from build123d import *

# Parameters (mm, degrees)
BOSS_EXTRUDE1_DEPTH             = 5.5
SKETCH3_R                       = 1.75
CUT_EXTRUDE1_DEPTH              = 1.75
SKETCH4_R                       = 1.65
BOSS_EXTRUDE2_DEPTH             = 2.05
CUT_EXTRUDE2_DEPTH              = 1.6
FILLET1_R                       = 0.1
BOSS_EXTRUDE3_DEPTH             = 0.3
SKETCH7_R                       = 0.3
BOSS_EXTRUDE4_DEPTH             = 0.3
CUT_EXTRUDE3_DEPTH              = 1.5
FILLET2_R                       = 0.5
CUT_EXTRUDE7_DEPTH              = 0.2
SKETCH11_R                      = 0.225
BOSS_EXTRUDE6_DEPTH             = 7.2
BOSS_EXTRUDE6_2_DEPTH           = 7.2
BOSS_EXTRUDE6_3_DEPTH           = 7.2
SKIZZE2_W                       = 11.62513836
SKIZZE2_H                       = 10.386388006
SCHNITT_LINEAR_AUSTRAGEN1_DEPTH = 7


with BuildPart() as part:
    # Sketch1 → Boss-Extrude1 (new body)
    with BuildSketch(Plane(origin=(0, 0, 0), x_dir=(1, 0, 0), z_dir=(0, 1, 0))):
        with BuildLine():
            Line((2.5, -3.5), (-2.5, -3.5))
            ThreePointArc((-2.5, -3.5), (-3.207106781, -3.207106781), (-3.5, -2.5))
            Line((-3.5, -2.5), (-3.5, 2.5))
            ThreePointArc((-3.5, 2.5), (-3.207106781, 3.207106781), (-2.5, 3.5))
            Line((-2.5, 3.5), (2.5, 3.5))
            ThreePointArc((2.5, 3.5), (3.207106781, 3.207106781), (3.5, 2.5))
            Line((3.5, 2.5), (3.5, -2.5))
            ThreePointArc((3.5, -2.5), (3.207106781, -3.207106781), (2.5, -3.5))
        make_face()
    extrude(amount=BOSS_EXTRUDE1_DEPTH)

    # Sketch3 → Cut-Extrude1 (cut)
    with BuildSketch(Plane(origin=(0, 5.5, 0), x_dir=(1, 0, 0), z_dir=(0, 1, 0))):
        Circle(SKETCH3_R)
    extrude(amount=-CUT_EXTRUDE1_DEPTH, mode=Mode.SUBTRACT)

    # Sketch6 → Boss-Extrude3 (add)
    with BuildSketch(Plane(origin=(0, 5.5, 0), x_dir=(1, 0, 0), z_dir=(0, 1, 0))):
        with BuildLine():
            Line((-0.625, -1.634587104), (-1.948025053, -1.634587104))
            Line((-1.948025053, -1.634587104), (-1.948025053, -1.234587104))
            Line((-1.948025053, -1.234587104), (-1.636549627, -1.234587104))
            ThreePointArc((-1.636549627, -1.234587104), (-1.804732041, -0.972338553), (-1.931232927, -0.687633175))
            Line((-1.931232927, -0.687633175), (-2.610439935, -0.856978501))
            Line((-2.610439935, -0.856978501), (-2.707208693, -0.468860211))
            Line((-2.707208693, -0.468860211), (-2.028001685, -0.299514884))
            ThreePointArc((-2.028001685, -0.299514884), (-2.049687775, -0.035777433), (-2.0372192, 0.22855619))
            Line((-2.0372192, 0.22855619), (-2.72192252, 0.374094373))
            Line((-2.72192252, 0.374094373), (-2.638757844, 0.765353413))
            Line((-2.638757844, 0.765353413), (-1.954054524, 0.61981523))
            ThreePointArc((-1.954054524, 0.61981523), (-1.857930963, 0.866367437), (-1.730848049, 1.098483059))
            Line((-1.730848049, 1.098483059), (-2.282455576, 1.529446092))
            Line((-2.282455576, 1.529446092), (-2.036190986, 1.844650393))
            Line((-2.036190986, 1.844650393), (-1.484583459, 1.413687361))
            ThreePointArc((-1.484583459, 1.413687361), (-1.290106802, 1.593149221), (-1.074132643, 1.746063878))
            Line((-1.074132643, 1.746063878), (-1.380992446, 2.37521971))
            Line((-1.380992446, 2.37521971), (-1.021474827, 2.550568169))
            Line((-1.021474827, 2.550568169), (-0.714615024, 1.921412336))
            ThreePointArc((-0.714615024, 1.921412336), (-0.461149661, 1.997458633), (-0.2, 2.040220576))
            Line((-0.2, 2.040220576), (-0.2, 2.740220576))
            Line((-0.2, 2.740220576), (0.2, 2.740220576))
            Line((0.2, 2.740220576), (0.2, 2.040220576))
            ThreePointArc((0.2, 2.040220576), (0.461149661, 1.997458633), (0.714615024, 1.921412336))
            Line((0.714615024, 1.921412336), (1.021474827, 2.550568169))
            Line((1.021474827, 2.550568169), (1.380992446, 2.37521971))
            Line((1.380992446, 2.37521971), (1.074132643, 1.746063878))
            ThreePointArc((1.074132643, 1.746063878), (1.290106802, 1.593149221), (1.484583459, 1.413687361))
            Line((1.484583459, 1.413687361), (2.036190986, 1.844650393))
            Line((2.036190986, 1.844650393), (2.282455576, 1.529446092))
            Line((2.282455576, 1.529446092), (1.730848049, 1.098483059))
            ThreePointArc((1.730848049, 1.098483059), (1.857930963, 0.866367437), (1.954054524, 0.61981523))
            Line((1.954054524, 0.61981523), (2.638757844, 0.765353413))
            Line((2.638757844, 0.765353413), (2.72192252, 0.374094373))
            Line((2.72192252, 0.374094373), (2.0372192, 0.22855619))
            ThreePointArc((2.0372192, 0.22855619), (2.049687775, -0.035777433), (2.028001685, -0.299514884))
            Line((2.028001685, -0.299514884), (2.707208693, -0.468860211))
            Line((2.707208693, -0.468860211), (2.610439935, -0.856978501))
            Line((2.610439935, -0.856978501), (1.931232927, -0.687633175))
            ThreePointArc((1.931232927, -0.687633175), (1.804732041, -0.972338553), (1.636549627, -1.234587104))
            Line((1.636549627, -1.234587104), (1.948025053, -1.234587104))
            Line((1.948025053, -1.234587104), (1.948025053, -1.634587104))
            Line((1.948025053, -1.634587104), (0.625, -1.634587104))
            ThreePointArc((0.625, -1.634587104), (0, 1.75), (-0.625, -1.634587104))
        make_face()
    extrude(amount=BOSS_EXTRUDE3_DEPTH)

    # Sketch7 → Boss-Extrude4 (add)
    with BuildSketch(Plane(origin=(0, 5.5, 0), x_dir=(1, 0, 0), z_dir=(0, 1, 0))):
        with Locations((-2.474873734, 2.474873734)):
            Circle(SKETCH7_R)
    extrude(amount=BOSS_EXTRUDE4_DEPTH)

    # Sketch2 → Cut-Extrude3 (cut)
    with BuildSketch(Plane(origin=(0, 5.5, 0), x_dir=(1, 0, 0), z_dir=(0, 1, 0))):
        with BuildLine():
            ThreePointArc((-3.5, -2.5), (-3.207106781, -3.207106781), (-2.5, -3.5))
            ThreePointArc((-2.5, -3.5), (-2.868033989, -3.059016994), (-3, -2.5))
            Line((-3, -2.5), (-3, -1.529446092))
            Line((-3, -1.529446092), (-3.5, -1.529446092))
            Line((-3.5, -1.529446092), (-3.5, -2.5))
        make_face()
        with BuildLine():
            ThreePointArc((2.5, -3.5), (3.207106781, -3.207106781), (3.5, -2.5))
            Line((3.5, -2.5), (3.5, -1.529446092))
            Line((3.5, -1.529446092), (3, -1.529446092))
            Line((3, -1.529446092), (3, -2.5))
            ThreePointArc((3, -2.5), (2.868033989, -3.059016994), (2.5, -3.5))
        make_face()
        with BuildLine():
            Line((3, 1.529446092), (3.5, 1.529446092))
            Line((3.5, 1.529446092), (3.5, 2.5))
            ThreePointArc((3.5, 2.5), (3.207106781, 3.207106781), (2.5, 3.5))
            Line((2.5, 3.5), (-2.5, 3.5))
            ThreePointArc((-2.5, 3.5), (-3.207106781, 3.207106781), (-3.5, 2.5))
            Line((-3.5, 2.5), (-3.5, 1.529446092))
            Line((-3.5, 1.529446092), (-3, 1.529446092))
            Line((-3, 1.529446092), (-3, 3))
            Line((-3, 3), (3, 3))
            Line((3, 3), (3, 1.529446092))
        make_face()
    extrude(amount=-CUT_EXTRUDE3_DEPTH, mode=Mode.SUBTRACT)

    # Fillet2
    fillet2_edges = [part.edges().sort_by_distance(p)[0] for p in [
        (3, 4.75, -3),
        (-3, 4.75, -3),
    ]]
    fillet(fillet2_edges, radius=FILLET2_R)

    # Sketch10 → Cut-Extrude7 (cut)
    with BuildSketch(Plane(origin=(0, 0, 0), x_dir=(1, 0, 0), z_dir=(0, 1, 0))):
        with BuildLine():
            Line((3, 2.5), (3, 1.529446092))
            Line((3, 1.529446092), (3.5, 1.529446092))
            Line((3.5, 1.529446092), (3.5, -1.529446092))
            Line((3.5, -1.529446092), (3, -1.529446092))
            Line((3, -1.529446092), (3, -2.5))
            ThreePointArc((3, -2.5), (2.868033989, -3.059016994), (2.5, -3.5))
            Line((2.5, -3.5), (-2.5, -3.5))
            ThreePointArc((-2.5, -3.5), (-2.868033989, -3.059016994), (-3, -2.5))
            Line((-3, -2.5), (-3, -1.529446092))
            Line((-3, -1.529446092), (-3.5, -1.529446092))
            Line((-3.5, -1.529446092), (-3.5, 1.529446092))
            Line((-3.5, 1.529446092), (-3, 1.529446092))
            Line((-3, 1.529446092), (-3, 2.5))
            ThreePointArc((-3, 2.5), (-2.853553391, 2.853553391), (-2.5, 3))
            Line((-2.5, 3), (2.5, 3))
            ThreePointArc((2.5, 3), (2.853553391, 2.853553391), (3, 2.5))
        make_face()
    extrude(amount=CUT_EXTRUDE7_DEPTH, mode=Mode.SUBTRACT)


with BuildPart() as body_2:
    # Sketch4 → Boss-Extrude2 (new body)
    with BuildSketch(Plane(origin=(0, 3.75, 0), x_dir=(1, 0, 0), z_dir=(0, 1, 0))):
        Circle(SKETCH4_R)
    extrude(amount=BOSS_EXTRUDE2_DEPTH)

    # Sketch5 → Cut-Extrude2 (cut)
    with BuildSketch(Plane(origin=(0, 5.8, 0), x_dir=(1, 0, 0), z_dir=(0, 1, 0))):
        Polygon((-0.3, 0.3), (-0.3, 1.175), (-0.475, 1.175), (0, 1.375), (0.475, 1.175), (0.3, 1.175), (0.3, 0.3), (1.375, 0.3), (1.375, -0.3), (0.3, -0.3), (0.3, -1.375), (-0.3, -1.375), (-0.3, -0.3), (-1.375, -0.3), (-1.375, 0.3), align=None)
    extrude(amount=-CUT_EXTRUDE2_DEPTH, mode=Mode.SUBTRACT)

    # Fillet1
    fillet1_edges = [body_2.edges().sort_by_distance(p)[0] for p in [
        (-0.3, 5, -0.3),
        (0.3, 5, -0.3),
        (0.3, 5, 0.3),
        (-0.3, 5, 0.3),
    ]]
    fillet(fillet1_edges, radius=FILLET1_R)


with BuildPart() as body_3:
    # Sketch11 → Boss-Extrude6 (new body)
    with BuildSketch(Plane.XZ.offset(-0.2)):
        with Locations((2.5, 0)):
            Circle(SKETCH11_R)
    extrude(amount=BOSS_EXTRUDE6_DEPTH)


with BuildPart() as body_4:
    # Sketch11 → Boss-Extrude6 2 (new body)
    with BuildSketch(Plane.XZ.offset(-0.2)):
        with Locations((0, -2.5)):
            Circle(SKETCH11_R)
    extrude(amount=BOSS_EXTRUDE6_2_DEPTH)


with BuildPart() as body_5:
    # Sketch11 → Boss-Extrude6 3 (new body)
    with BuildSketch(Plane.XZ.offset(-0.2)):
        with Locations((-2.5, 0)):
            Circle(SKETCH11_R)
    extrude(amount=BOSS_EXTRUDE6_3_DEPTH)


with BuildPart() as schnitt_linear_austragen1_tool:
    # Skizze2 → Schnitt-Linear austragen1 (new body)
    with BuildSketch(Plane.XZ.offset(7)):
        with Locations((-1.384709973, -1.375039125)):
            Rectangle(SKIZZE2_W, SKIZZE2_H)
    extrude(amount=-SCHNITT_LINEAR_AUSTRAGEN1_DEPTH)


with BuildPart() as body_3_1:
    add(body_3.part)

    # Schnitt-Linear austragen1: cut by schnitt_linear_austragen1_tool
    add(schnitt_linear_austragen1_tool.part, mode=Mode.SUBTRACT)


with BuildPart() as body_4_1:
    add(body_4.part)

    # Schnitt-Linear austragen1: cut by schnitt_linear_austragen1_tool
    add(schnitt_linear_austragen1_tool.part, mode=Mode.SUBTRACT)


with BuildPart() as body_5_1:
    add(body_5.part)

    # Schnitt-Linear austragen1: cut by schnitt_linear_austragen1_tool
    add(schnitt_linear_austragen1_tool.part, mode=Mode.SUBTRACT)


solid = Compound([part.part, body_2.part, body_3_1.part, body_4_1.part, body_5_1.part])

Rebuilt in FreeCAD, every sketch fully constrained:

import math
import FreeCAD as App
import Part
import Sketcher
Q = App.Units.Quantity


def edges_at(feature, points):
    """Names of the edges that pass closest to the given points."""
    edges = feature.Shape.Edges
    near = lambda p: min(range(len(edges)), key=lambda i: edges[i].distToShape(Part.Vertex(*p))[0])
    return sorted({f"Edge{near(p) + 1}" for p in points})

doc = App.newDocument("Part")
params = doc.addObject("Spreadsheet::Sheet", "Params")
for row, (alias, value) in enumerate([
    ("sketch1_radius", "1 mm"),
    ("sketch1_width", "5 mm"),
    ("pad1_length", "5.5 mm"),
    ("sketch2_diameter", "3.5 mm"),
    ("pocket1_length", "1.75 mm"),
    ("sketch3_radius", "1.75 mm"),
    ("sketch3_radius2", "2.05 mm"),
    ("sketch3_width", "0.4 mm"),
    ("sketch3_height", "0.7 mm"),
    ("sketch3_length", "0.7 mm"),
    ("pad2_length", "0.3 mm"),
    ("sketch4_diameter", "0.6 mm"),
    ("pad3_length", "0.3 mm"),
    ("sketch5_radius", "1 mm"),
    ("sketch5_width", "5 mm"),
    ("sketch5_width2", "6 mm"),
    ("pocket2_length", "1.5 mm"),
    ("fillet_radius", "0.5 mm"),
    ("sketch6_radius", "0.5 mm"),
    ("sketch6_width", "5 mm"),
    ("sketch6_radius2", "1.25 mm"),
    ("sketch6_width2", "0.5 mm"),
    ("pocket3_length", "0.2 mm"),
    ("sketch7_diameter", "3.3 mm"),
    ("pad4_length", "2.05 mm"),
    ("sketch8_width", "0.6 mm"),
    ("pocket4_length", "1.6 mm"),
    ("fillet2_radius", "0.1 mm"),
    ("sketch9_diameter", "0.45 mm"),
    ("pad5_length", "7.2 mm"),
    ("sketch10_diameter", "0.45 mm"),
    ("pad6_length", "7.2 mm"),
    ("sketch11_diameter", "0.45 mm"),
    ("pad7_length", "7.2 mm"),
    ("pad8_length", "7 mm"),
], start=1):
    params.set(f"A{row}", alias)
    params.set(f"B{row}", "=" + value)
    params.setAlias(f"B{row}", alias)

body = doc.addObject("PartDesign::Body", "Body")

sketch1 = body.newObject("Sketcher::SketchObject", "Sketch")
sketch1.AttachmentSupport = (doc.getObject("XZ_Plane"), [""])
sketch1.MapMode = "FlatFace"
sketch1.addGeometry(Part.LineSegment(App.Vector(-2.5, 3.5, 0), App.Vector(2.5, 3.5, 0)), False)
sketch1.addGeometry(Part.ArcOfCircle(Part.Circle(App.Vector(2.5, 2.5, 0), App.Vector(0, 0, 1), 1), math.radians(0), math.radians(90)), False)
sketch1.addGeometry(Part.LineSegment(App.Vector(3.5, 2.5, 0), App.Vector(3.5, -2.5, 0)), False)
sketch1.addGeometry(Part.ArcOfCircle(Part.Circle(App.Vector(2.5, -2.5, 0), App.Vector(0, 0, 1), 1), math.radians(-90), math.radians(0)), False)
sketch1.addGeometry(Part.LineSegment(App.Vector(2.5, -3.5, 0), App.Vector(-2.5, -3.5, 0)), False)
sketch1.addGeometry(Part.ArcOfCircle(Part.Circle(App.Vector(-2.5, -2.5, 0), App.Vector(0, 0, 1), 1), math.radians(-180), math.radians(-90)), False)
sketch1.addGeometry(Part.LineSegment(App.Vector(-3.5, -2.5, 0), App.Vector(-3.5, 2.5, 0)), False)
sketch1.addGeometry(Part.ArcOfCircle(Part.Circle(App.Vector(-2.5, 2.5, 0), App.Vector(0, 0, 1), 1), math.radians(90), math.radians(180)), False)
sketch1.addConstraint(Sketcher.Constraint("Tangent", 0, 2, 1, 2))
sketch1.addConstraint(Sketcher.Constraint("Tangent", 1, 1, 2, 1))
sketch1.addConstraint(Sketcher.Constraint("Tangent", 2, 2, 3, 2))
sketch1.addConstraint(Sketcher.Constraint("Tangent", 3, 1, 4, 1))
sketch1.addConstraint(Sketcher.Constraint("Tangent", 4, 2, 5, 2))
sketch1.addConstraint(Sketcher.Constraint("Tangent", 5, 1, 6, 1))
sketch1.addConstraint(Sketcher.Constraint("Tangent", 6, 2, 7, 2))
sketch1.addConstraint(Sketcher.Constraint("Tangent", 7, 1, 0, 1))
sketch1.addConstraint(Sketcher.Constraint("Horizontal", 0))
sketch1.addConstraint(Sketcher.Constraint("Vertical", 2))
sketch1.addConstraint(Sketcher.Constraint("Horizontal", 4))
sketch1.addConstraint(Sketcher.Constraint("Vertical", 6))
sketch1.addConstraint(Sketcher.Constraint("Equal", 1, 3))
sketch1.addConstraint(Sketcher.Constraint("Equal", 3, 5))
sketch1.addConstraint(Sketcher.Constraint("Equal", 5, 7))
sketch1.addConstraint(Sketcher.Constraint("Symmetric", 1, 3, 5, 3, -1, 1))
sketch1.addConstraint(Sketcher.Constraint("Equal", 4, 2))
sketch1.addConstraint(Sketcher.Constraint("Radius", 1, Q("1 mm")))
sketch1.addConstraint(Sketcher.Constraint("DistanceX", 0, 1, 0, 2, Q("5 mm")))
sketch1.setExpression("Constraints[17]", "Params.sketch1_radius")
sketch1.setExpression("Constraints[18]", "Params.sketch1_width")
pad1 = body.newObject("PartDesign::Pad", "Pad")
pad1.Profile = sketch1
pad1.setExpression("Length", "Params.pad1_length")
pad1.Reversed = True

sketch2 = body.newObject("Sketcher::SketchObject", "Sketch001")
sketch2.AttachmentSupport = (doc.getObject("XZ_Plane"), [""])
sketch2.MapMode = "FlatFace"
sketch2.AttachmentOffset = App.Placement(App.Vector(0, 0, -5.5), App.Rotation())
sketch2.addGeometry(Part.Circle(App.Vector(0, 0, 0), App.Vector(0, 0, 1), 1.8), False)
sketch2.addConstraint(Sketcher.Constraint("Coincident", 0, 3, -1, 1))
sketch2.addConstraint(Sketcher.Constraint("Diameter", 0, Q("3.5 mm")))
sketch2.setExpression("Constraints[1]", "Params.sketch2_diameter")
pocket1 = body.newObject("PartDesign::Pocket", "Pocket")
pocket1.Profile = sketch2
pocket1.setExpression("Length", "Params.pocket1_length")
pocket1.Reversed = True

sketch3 = body.newObject("Sketcher::SketchObject", "Sketch002")
sketch3.AttachmentSupport = (doc.getObject("XZ_Plane"), [""])
sketch3.MapMode = "FlatFace"
sketch3.AttachmentOffset = App.Placement(App.Vector(0, 0, -5.5), App.Rotation())
sketch3.addGeometry(Part.LineSegment(App.Vector(-1.95, 1.63, 0), App.Vector(-0.62, 1.63, 0)), False)
sketch3.addGeometry(Part.ArcOfCircle(Part.Circle(App.Vector(0, 0, 0), App.Vector(0, 0, 1), 1.75), math.radians(111), math.radians(429)), False)
sketch3.addGeometry(Part.LineSegment(App.Vector(0.62, 1.63, 0), App.Vector(1.95, 1.63, 0)), False)
sketch3.addGeometry(Part.LineSegment(App.Vector(1.95, 1.63, 0), App.Vector(1.95, 1.23, 0)), False)
sketch3.addGeometry(Part.LineSegment(App.Vector(1.95, 1.23, 0), App.Vector(1.64, 1.23, 0)), False)
sketch3.addGeometry(Part.ArcOfCircle(Part.Circle(App.Vector(0, 0, 0), App.Vector(0, 0, 1), 2.05), math.radians(19.6), math.radians(37.03)), False)
sketch3.addGeometry(Part.LineSegment(App.Vector(1.93, 0.69, 0), App.Vector(2.61, 0.86, 0)), False)
sketch3.addGeometry(Part.LineSegment(App.Vector(2.61, 0.86, 0), App.Vector(2.71, 0.47, 0)), False)
sketch3.addGeometry(Part.LineSegment(App.Vector(2.71, 0.47, 0), App.Vector(2.03, 0.3, 0)), False)
sketch3.addGeometry(Part.ArcOfCircle(Part.Circle(App.Vector(0, 0, 0), App.Vector(0, 0, 1), 2.05), math.radians(-6.4), math.radians(8.4)), False)
sketch3.addGeometry(Part.LineSegment(App.Vector(2.04, -0.23, 0), App.Vector(2.72, -0.37, 0)), False)
sketch3.addGeometry(Part.LineSegment(App.Vector(2.72, -0.37, 0), App.Vector(2.64, -0.77, 0)), False)
sketch3.addGeometry(Part.LineSegment(App.Vector(2.64, -0.77, 0), App.Vector(1.95, -0.62, 0)), False)
sketch3.addGeometry(Part.ArcOfCircle(Part.Circle(App.Vector(0, 0, 0), App.Vector(0, 0, 1), 2.05), math.radians(-32.4), math.radians(-17.6)), False)
sketch3.addGeometry(Part.LineSegment(App.Vector(1.73, -1.1, 0), App.Vector(2.28, -1.53, 0)), False)
sketch3.addGeometry(Part.LineSegment(App.Vector(2.28, -1.53, 0), App.Vector(2.04, -1.84, 0)), False)
sketch3.addGeometry(Part.LineSegment(App.Vector(2.04, -1.84, 0), App.Vector(1.48, -1.41, 0)), False)
sketch3.addGeometry(Part.ArcOfCircle(Part.Circle(App.Vector(0, 0, 0), App.Vector(0, 0, 1), 2.05), math.radians(-58.4), math.radians(-43.6)), False)
sketch3.addGeometry(Part.LineSegment(App.Vector(1.07, -1.75, 0), App.Vector(1.38, -2.38, 0)), False)
sketch3.addGeometry(Part.LineSegment(App.Vector(1.38, -2.38, 0), App.Vector(1.02, -2.55, 0)), False)
sketch3.addGeometry(Part.LineSegment(App.Vector(1.02, -2.55, 0), App.Vector(0.71, -1.92, 0)), False)
sketch3.addGeometry(Part.ArcOfCircle(Part.Circle(App.Vector(0, 0, 0), App.Vector(0, 0, 1), 2.05), math.radians(-84.4), math.radians(-69.6)), False)
sketch3.addGeometry(Part.LineSegment(App.Vector(0.2, -2.04, 0), App.Vector(0.2, -2.74, 0)), False)
sketch3.addGeometry(Part.LineSegment(App.Vector(0.2, -2.74, 0), App.Vector(-0.2, -2.74, 0)), False)
sketch3.addGeometry(Part.LineSegment(App.Vector(-0.2, -2.74, 0), App.Vector(-0.2, -2.04, 0)), False)
sketch3.addGeometry(Part.ArcOfCircle(Part.Circle(App.Vector(0, 0, 0), App.Vector(0, 0, 1), 2.05), math.radians(-110.4), math.radians(-95.6)), False)
sketch3.addGeometry(Part.LineSegment(App.Vector(-0.71, -1.92, 0), App.Vector(-1.02, -2.55, 0)), False)
sketch3.addGeometry(Part.LineSegment(App.Vector(-1.02, -2.55, 0), App.Vector(-1.38, -2.38, 0)), False)
sketch3.addGeometry(Part.LineSegment(App.Vector(-1.38, -2.38, 0), App.Vector(-1.07, -1.75, 0)), False)
sketch3.addGeometry(Part.ArcOfCircle(Part.Circle(App.Vector(0, 0, 0), App.Vector(0, 0, 1), 2.05), math.radians(-136.4), math.radians(-121.6)), False)
sketch3.addGeometry(Part.LineSegment(App.Vector(-1.48, -1.41, 0), App.Vector(-2.04, -1.84, 0)), False)
sketch3.addGeometry(Part.LineSegment(App.Vector(-2.04, -1.84, 0), App.Vector(-2.28, -1.53, 0)), False)
sketch3.addGeometry(Part.LineSegment(App.Vector(-2.28, -1.53, 0), App.Vector(-1.73, -1.1, 0)), False)
sketch3.addGeometry(Part.ArcOfCircle(Part.Circle(App.Vector(0, 0, 0), App.Vector(0, 0, 1), 2.05), math.radians(-162.4), math.radians(-147.6)), False)
sketch3.addGeometry(Part.LineSegment(App.Vector(-1.95, -0.62, 0), App.Vector(-2.64, -0.77, 0)), False)
sketch3.addGeometry(Part.LineSegment(App.Vector(-2.64, -0.77, 0), App.Vector(-2.72, -0.37, 0)), False)
sketch3.addGeometry(Part.LineSegment(App.Vector(-2.72, -0.37, 0), App.Vector(-2.04, -0.23, 0)), False)
sketch3.addGeometry(Part.ArcOfCircle(Part.Circle(App.Vector(0, 0, 0), App.Vector(0, 0, 1), 2.05), math.radians(171.6), math.radians(186.4)), False)
sketch3.addGeometry(Part.LineSegment(App.Vector(-2.03, 0.3, 0), App.Vector(-2.71, 0.47, 0)), False)
sketch3.addGeometry(Part.LineSegment(App.Vector(-2.71, 0.47, 0), App.Vector(-2.61, 0.86, 0)), False)
sketch3.addGeometry(Part.LineSegment(App.Vector(-2.61, 0.86, 0), App.Vector(-1.93, 0.69, 0)), False)
sketch3.addGeometry(Part.ArcOfCircle(Part.Circle(App.Vector(0, 0, 0), App.Vector(0, 0, 1), 2.05), math.radians(142.97), math.radians(160.4)), False)
sketch3.addGeometry(Part.LineSegment(App.Vector(-1.64, 1.23, 0), App.Vector(-1.95, 1.23, 0)), False)
sketch3.addGeometry(Part.LineSegment(App.Vector(-1.95, 1.23, 0), App.Vector(-1.95, 1.63, 0)), False)
sketch3.addConstraint(Sketcher.Constraint("Coincident", 0, 2, 1, 1))
sketch3.addConstraint(Sketcher.Constraint("Coincident", 1, 2, 2, 1))
sketch3.addConstraint(Sketcher.Constraint("Coincident", 2, 2, 3, 1))
sketch3.addConstraint(Sketcher.Constraint("Coincident", 3, 2, 4, 1))
sketch3.addConstraint(Sketcher.Constraint("Coincident", 4, 2, 5, 2))
sketch3.addConstraint(Sketcher.Constraint("Coincident", 5, 1, 6, 1))
sketch3.addConstraint(Sketcher.Constraint("Coincident", 6, 2, 7, 1))
sketch3.addConstraint(Sketcher.Constraint("Coincident", 7, 2, 8, 1))
sketch3.addConstraint(Sketcher.Constraint("Coincident", 8, 2, 9, 2))
sketch3.addConstraint(Sketcher.Constraint("Coincident", 9, 1, 10, 1))
sketch3.addConstraint(Sketcher.Constraint("Coincident", 10, 2, 11, 1))
sketch3.addConstraint(Sketcher.Constraint("Coincident", 11, 2, 12, 1))
sketch3.addConstraint(Sketcher.Constraint("Coincident", 12, 2, 13, 2))
sketch3.addConstraint(Sketcher.Constraint("Coincident", 13, 1, 14, 1))
sketch3.addConstraint(Sketcher.Constraint("Coincident", 14, 2, 15, 1))
sketch3.addConstraint(Sketcher.Constraint("Coincident", 15, 2, 16, 1))
sketch3.addConstraint(Sketcher.Constraint("Coincident", 16, 2, 17, 2))
sketch3.addConstraint(Sketcher.Constraint("Coincident", 17, 1, 18, 1))
sketch3.addConstraint(Sketcher.Constraint("Coincident", 18, 2, 19, 1))
sketch3.addConstraint(Sketcher.Constraint("Coincident", 19, 2, 20, 1))
sketch3.addConstraint(Sketcher.Constraint("Coincident", 20, 2, 21, 2))
sketch3.addConstraint(Sketcher.Constraint("Coincident", 21, 1, 22, 1))
sketch3.addConstraint(Sketcher.Constraint("Coincident", 22, 2, 23, 1))
sketch3.addConstraint(Sketcher.Constraint("Coincident", 23, 2, 24, 1))
sketch3.addConstraint(Sketcher.Constraint("Coincident", 24, 2, 25, 2))
sketch3.addConstraint(Sketcher.Constraint("Coincident", 25, 1, 26, 1))
sketch3.addConstraint(Sketcher.Constraint("Coincident", 26, 2, 27, 1))
sketch3.addConstraint(Sketcher.Constraint("Coincident", 27, 2, 28, 1))
sketch3.addConstraint(Sketcher.Constraint("Coincident", 28, 2, 29, 2))
sketch3.addConstraint(Sketcher.Constraint("Coincident", 29, 1, 30, 1))
sketch3.addConstraint(Sketcher.Constraint("Coincident", 30, 2, 31, 1))
sketch3.addConstraint(Sketcher.Constraint("Coincident", 31, 2, 32, 1))
sketch3.addConstraint(Sketcher.Constraint("Coincident", 32, 2, 33, 2))
sketch3.addConstraint(Sketcher.Constraint("Coincident", 33, 1, 34, 1))
sketch3.addConstraint(Sketcher.Constraint("Coincident", 34, 2, 35, 1))
sketch3.addConstraint(Sketcher.Constraint("Coincident", 35, 2, 36, 1))
sketch3.addConstraint(Sketcher.Constraint("Coincident", 36, 2, 37, 2))
sketch3.addConstraint(Sketcher.Constraint("Coincident", 37, 1, 38, 1))
sketch3.addConstraint(Sketcher.Constraint("Coincident", 38, 2, 39, 1))
sketch3.addConstraint(Sketcher.Constraint("Coincident", 39, 2, 40, 1))
sketch3.addConstraint(Sketcher.Constraint("Coincident", 40, 2, 41, 2))
sketch3.addConstraint(Sketcher.Constraint("Coincident", 41, 1, 42, 1))
sketch3.addConstraint(Sketcher.Constraint("Coincident", 42, 2, 43, 1))
sketch3.addConstraint(Sketcher.Constraint("Coincident", 43, 2, 0, 1))
sketch3.addConstraint(Sketcher.Constraint("Horizontal", 0))
sketch3.addConstraint(Sketcher.Constraint("Horizontal", 2))
sketch3.addConstraint(Sketcher.Constraint("Vertical", 3))
sketch3.addConstraint(Sketcher.Constraint("Horizontal", 4))
sketch3.addConstraint(Sketcher.Constraint("Vertical", 22))
sketch3.addConstraint(Sketcher.Constraint("Horizontal", 23))
sketch3.addConstraint(Sketcher.Constraint("Vertical", 24))
sketch3.addConstraint(Sketcher.Constraint("Horizontal", 42))
sketch3.addConstraint(Sketcher.Constraint("Vertical", 43))
sketch3.addConstraint(Sketcher.Constraint("Coincident", 1, 3, -1, 1))
sketch3.addConstraint(Sketcher.Constraint("Coincident", 5, 3, -1, 1))
sketch3.addConstraint(Sketcher.Constraint("Coincident", 9, 3, -1, 1))
sketch3.addConstraint(Sketcher.Constraint("Coincident", 13, 3, -1, 1))
sketch3.addConstraint(Sketcher.Constraint("Coincident", 17, 3, -1, 1))
sketch3.addConstraint(Sketcher.Constraint("Coincident", 21, 3, -1, 1))
sketch3.addConstraint(Sketcher.Constraint("Coincident", 25, 3, -1, 1))
sketch3.addConstraint(Sketcher.Constraint("Coincident", 29, 3, -1, 1))
sketch3.addConstraint(Sketcher.Constraint("Coincident", 33, 3, -1, 1))
sketch3.addConstraint(Sketcher.Constraint("Coincident", 37, 3, -1, 1))
sketch3.addConstraint(Sketcher.Constraint("Coincident", 41, 3, -1, 1))
sketch3.addConstraint(Sketcher.Constraint("Equal", 5, 9))
sketch3.addConstraint(Sketcher.Constraint("Equal", 9, 13))
sketch3.addConstraint(Sketcher.Constraint("Equal", 13, 17))
sketch3.addConstraint(Sketcher.Constraint("Equal", 17, 21))
sketch3.addConstraint(Sketcher.Constraint("Equal", 21, 25))
sketch3.addConstraint(Sketcher.Constraint("Equal", 25, 29))
sketch3.addConstraint(Sketcher.Constraint("Equal", 29, 33))
sketch3.addConstraint(Sketcher.Constraint("Equal", 33, 37))
sketch3.addConstraint(Sketcher.Constraint("Equal", 37, 41))
sketch3.addConstraint(Sketcher.Constraint("Symmetric", 19, 2, 26, 2, -2))
sketch3.addConstraint(Sketcher.Constraint("Symmetric", 18, 2, 27, 2, -2))
sketch3.addConstraint(Sketcher.Constraint("Symmetric", 15, 2, 30, 2, -2))
sketch3.addConstraint(Sketcher.Constraint("Symmetric", 14, 2, 31, 2, -2))
sketch3.addConstraint(Sketcher.Constraint("Symmetric", 11, 2, 34, 2, -2))
sketch3.addConstraint(Sketcher.Constraint("Symmetric", 10, 2, 35, 2, -2))
sketch3.addConstraint(Sketcher.Constraint("Symmetric", 7, 2, 38, 2, -2))
sketch3.addConstraint(Sketcher.Constraint("Symmetric", 6, 2, 39, 2, -2))
sketch3.addConstraint(Sketcher.Constraint("Symmetric", 3, 2, 42, 2, -2))
sketch3.addConstraint(Sketcher.Constraint("Perpendicular", 6, 7))
sketch3.addConstraint(Sketcher.Constraint("Perpendicular", 7, 8))
sketch3.addConstraint(Sketcher.Constraint("Perpendicular", 10, 11))
sketch3.addConstraint(Sketcher.Constraint("Perpendicular", 11, 12))
sketch3.addConstraint(Sketcher.Constraint("Perpendicular", 14, 15))
sketch3.addConstraint(Sketcher.Constraint("Perpendicular", 15, 16))
sketch3.addConstraint(Sketcher.Constraint("Perpendicular", 18, 19))
sketch3.addConstraint(Sketcher.Constraint("Perpendicular", 19, 20))
sketch3.addConstraint(Sketcher.Constraint("Perpendicular", 26, 27))
sketch3.addConstraint(Sketcher.Constraint("Perpendicular", 27, 28))
sketch3.addConstraint(Sketcher.Constraint("Perpendicular", 30, 31))
sketch3.addConstraint(Sketcher.Constraint("Perpendicular", 31, 32))
sketch3.addConstraint(Sketcher.Constraint("Perpendicular", 34, 35))
sketch3.addConstraint(Sketcher.Constraint("Perpendicular", 35, 36))
sketch3.addConstraint(Sketcher.Constraint("Perpendicular", 38, 39))
sketch3.addConstraint(Sketcher.Constraint("Perpendicular", 39, 40))
sketch3.addConstraint(Sketcher.Constraint("Horizontal", 0, 2, 1, 2))
sketch3.addConstraint(Sketcher.Constraint("Horizontal", 21, 1, 24, 2))
sketch3.addConstraint(Sketcher.Constraint("Equal", 23, 3))
sketch3.addConstraint(Sketcher.Constraint("Equal", 6, 8))
sketch3.addConstraint(Sketcher.Constraint("Equal", 8, 10))
sketch3.addConstraint(Sketcher.Constraint("Equal", 7, 11))
sketch3.addConstraint(Sketcher.Constraint("Equal", 10, 12))
sketch3.addConstraint(Sketcher.Constraint("Equal", 12, 14))
sketch3.addConstraint(Sketcher.Constraint("Equal", 11, 15))
sketch3.addConstraint(Sketcher.Constraint("Equal", 14, 16))
sketch3.addConstraint(Sketcher.Constraint("Equal", 16, 18))
sketch3.addConstraint(Sketcher.Constraint("Equal", 15, 19))
sketch3.addConstraint(Sketcher.Constraint("Equal", 18, 20))
sketch3.addConstraint(Sketcher.Constraint("Angle", 6, Q("14 deg")))
sketch3.addConstraint(Sketcher.Constraint("Angle", 10, Q("-12 deg")))
sketch3.addConstraint(Sketcher.Constraint("Angle", 14, Q("-38 deg")))
sketch3.addConstraint(Sketcher.Constraint("Angle", 18, Q("-64 deg")))
sketch3.addConstraint(Sketcher.Constraint("Radius", 1, Q("1.75 mm")))
sketch3.addConstraint(Sketcher.Constraint("Radius", 5, Q("2.05 mm")))
sketch3.addConstraint(Sketcher.Constraint("DistanceX", 23, 2, 23, 1, Q("0.4 mm")))
sketch3.addConstraint(Sketcher.Constraint("DistanceY", 22, 2, 22, 1, Q("0.7 mm")))
sketch3.addConstraint(Sketcher.Constraint("Distance", 6, Q("0.7 mm")))
sketch3.addConstraint(Sketcher.Constraint("Distance", 7, Q("0.4 mm")))
sketch3.addConstraint(Sketcher.Constraint("DistanceX", 0, 2, 1, 2, Q("1.25 mm")))
sketch3.addConstraint(Sketcher.Constraint("DistanceX", 0, 1, 0, 2, Q("1.323025 mm")))
sketch3.setExpression("Constraints[115]", "Params.sketch3_radius")
sketch3.setExpression("Constraints[116]", "Params.sketch3_radius2")
sketch3.setExpression("Constraints[117]", "Params.sketch3_width")
sketch3.setExpression("Constraints[118]", "Params.sketch3_height")
sketch3.setExpression("Constraints[119]", "Params.sketch3_length")
pad2 = body.newObject("PartDesign::Pad", "Pad001")
pad2.Profile = sketch3
pad2.setExpression("Length", "Params.pad2_length")
pad2.Reversed = True

sketch4 = body.newObject("Sketcher::SketchObject", "Sketch003")
sketch4.AttachmentSupport = (doc.getObject("XZ_Plane"), [""])
sketch4.MapMode = "FlatFace"
sketch4.AttachmentOffset = App.Placement(App.Vector(0, 0, -5.5), App.Rotation())
sketch4.addGeometry(Part.Circle(App.Vector(-2.47, -2.47, 0), App.Vector(0, 0, 1), 0.3), False)
sketch4.addConstraint(Sketcher.Constraint("Diameter", 0, Q("0.6 mm")))
sketch4.addConstraint(Sketcher.Constraint("DistanceX", 0, 3, -1, 1, Q("2.474874 mm")))
sketch4.addConstraint(Sketcher.Constraint("DistanceY", 0, 3, -1, 1, Q("2.474874 mm")))
sketch4.setExpression("Constraints[0]", "Params.sketch4_diameter")
pad3 = body.newObject("PartDesign::Pad", "Pad002")
pad3.Profile = sketch4
pad3.setExpression("Length", "Params.pad3_length")
pad3.Reversed = True

sketch5 = body.newObject("Sketcher::SketchObject", "Sketch004")
sketch5.AttachmentSupport = (doc.getObject("XZ_Plane"), [""])
sketch5.MapMode = "FlatFace"
sketch5.AttachmentOffset = App.Placement(App.Vector(0, 0, -5.5), App.Rotation())
sketch5.addGeometry(Part.ArcOfCircle(Part.Circle(App.Vector(-2.5, 2.5, 0), App.Vector(0, 0, 1), 1), math.radians(90), math.radians(180)), False)
sketch5.addGeometry(Part.ArcOfCircle(Part.Circle(App.Vector(-1.8, 2.5, 0), App.Vector(0, 0, 1), 1.2), math.radians(127), math.radians(180)), False)
sketch5.addGeometry(Part.LineSegment(App.Vector(-3, 2.5, 0), App.Vector(-3, 1.5, 0)), False)
sketch5.addGeometry(Part.LineSegment(App.Vector(-3, 1.5, 0), App.Vector(-3.5, 1.5, 0)), False)
sketch5.addGeometry(Part.LineSegment(App.Vector(-3.5, 1.5, 0), App.Vector(-3.5, 2.5, 0)), False)
sketch5.addGeometry(Part.ArcOfCircle(Part.Circle(App.Vector(2.5, 2.5, 0), App.Vector(0, 0, 1), 1), math.radians(0), math.radians(90)), False)
sketch5.addGeometry(Part.LineSegment(App.Vector(3.5, 2.5, 0), App.Vector(3.5, 1.5, 0)), False)
sketch5.addGeometry(Part.LineSegment(App.Vector(3.5, 1.5, 0), App.Vector(3, 1.5, 0)), False)
sketch5.addGeometry(Part.LineSegment(App.Vector(3, 1.5, 0), App.Vector(3, 2.5, 0)), False)
sketch5.addGeometry(Part.ArcOfCircle(Part.Circle(App.Vector(1.8, 2.5, 0), App.Vector(0, 0, 1), 1.2), math.radians(0), math.radians(53)), False)
sketch5.addGeometry(Part.LineSegment(App.Vector(3, -1.5, 0), App.Vector(3.5, -1.5, 0)), False)
sketch5.addGeometry(Part.LineSegment(App.Vector(3.5, -1.5, 0), App.Vector(3.5, -2.5, 0)), False)
sketch5.addGeometry(Part.ArcOfCircle(Part.Circle(App.Vector(2.5, -2.5, 0), App.Vector(0, 0, 1), 1), math.radians(-90), math.radians(0)), False)
sketch5.addGeometry(Part.LineSegment(App.Vector(2.5, -3.5, 0), App.Vector(-2.5, -3.5, 0)), False)
sketch5.addGeometry(Part.ArcOfCircle(Part.Circle(App.Vector(-2.5, -2.5, 0), App.Vector(0, 0, 1), 1), math.radians(-180), math.radians(-90)), False)
sketch5.addGeometry(Part.LineSegment(App.Vector(-3.5, -2.5, 0), App.Vector(-3.5, -1.5, 0)), False)
sketch5.addGeometry(Part.LineSegment(App.Vector(-3.5, -1.5, 0), App.Vector(-3, -1.5, 0)), False)
sketch5.addGeometry(Part.LineSegment(App.Vector(-3, -1.5, 0), App.Vector(-3, -3, 0)), False)
sketch5.addGeometry(Part.LineSegment(App.Vector(-3, -3, 0), App.Vector(3, -3, 0)), False)
sketch5.addGeometry(Part.LineSegment(App.Vector(3, -3, 0), App.Vector(3, -1.5, 0)), False)
sketch5.addConstraint(Sketcher.Constraint("Coincident", 0, 1, 1, 1))
sketch5.addConstraint(Sketcher.Constraint("Tangent", 1, 2, 2, 1))
sketch5.addConstraint(Sketcher.Constraint("Coincident", 2, 2, 3, 1))
sketch5.addConstraint(Sketcher.Constraint("Coincident", 3, 2, 4, 1))
sketch5.addConstraint(Sketcher.Constraint("Tangent", 4, 2, 0, 2))
sketch5.addConstraint(Sketcher.Constraint("Tangent", 5, 1, 6, 1))
sketch5.addConstraint(Sketcher.Constraint("Coincident", 6, 2, 7, 1))
sketch5.addConstraint(Sketcher.Constraint("Coincident", 7, 2, 8, 1))
sketch5.addConstraint(Sketcher.Constraint("Tangent", 8, 2, 9, 1))
sketch5.addConstraint(Sketcher.Constraint("Coincident", 9, 2, 5, 2))
sketch5.addConstraint(Sketcher.Constraint("Coincident", 10, 2, 11, 1))
sketch5.addConstraint(Sketcher.Constraint("Tangent", 11, 2, 12, 2))
sketch5.addConstraint(Sketcher.Constraint("Tangent", 12, 1, 13, 1))
sketch5.addConstraint(Sketcher.Constraint("Tangent", 13, 2, 14, 2))
sketch5.addConstraint(Sketcher.Constraint("Tangent", 14, 1, 15, 1))
sketch5.addConstraint(Sketcher.Constraint("Coincident", 15, 2, 16, 1))
sketch5.addConstraint(Sketcher.Constraint("Coincident", 16, 2, 17, 1))
sketch5.addConstraint(Sketcher.Constraint("Coincident", 17, 2, 18, 1))
sketch5.addConstraint(Sketcher.Constraint("Coincident", 18, 2, 19, 1))
sketch5.addConstraint(Sketcher.Constraint("Coincident", 19, 2, 10, 1))
sketch5.addConstraint(Sketcher.Constraint("Vertical", 2))
sketch5.addConstraint(Sketcher.Constraint("Horizontal", 3))
sketch5.addConstraint(Sketcher.Constraint("Vertical", 4))
sketch5.addConstraint(Sketcher.Constraint("Vertical", 6))
sketch5.addConstraint(Sketcher.Constraint("Horizontal", 7))
sketch5.addConstraint(Sketcher.Constraint("Vertical", 8))
sketch5.addConstraint(Sketcher.Constraint("Horizontal", 10))
sketch5.addConstraint(Sketcher.Constraint("Vertical", 11))
sketch5.addConstraint(Sketcher.Constraint("Horizontal", 13))
sketch5.addConstraint(Sketcher.Constraint("Vertical", 15))
sketch5.addConstraint(Sketcher.Constraint("Horizontal", 16))
sketch5.addConstraint(Sketcher.Constraint("Vertical", 17))
sketch5.addConstraint(Sketcher.Constraint("Horizontal", 18))
sketch5.addConstraint(Sketcher.Constraint("Vertical", 19))
sketch5.addConstraint(Sketcher.Constraint("Equal", 0, 5))
sketch5.addConstraint(Sketcher.Constraint("Equal", 1, 9))
sketch5.addConstraint(Sketcher.Constraint("Equal", 5, 12))
sketch5.addConstraint(Sketcher.Constraint("Equal", 12, 14))
sketch5.addConstraint(Sketcher.Constraint("Symmetric", 0, 3, 12, 3, -1, 1))
sketch5.addConstraint(Sketcher.Constraint("Symmetric", 5, 3, 14, 3, -1, 1))
sketch5.addConstraint(Sketcher.Constraint("Symmetric", 7, 2, 16, 2, -1, 1))
sketch5.addConstraint(Sketcher.Constraint("Symmetric", 2, 2, 19, 2, -1, 1))
sketch5.addConstraint(Sketcher.Constraint("Symmetric", 1, 3, 9, 3, -2))
sketch5.addConstraint(Sketcher.Constraint("Symmetric", 3, 2, 6, 2, -2))
sketch5.addConstraint(Sketcher.Constraint("Horizontal", 0, 3, 1, 3))
sketch5.addConstraint(Sketcher.Constraint("Vertical", 14, 3, 0, 1))
sketch5.addConstraint(Sketcher.Constraint("Radius", 0, Q("1 mm")))
sketch5.addConstraint(Sketcher.Constraint("DistanceX", 13, 2, 13, 1, Q("5 mm")))
sketch5.addConstraint(Sketcher.Constraint("DistanceX", 18, 1, 18, 2, Q("6 mm")))
sketch5.addConstraint(Sketcher.Constraint("DistanceY", 17, 2, -1, 1, Q("3 mm")))
sketch5.addConstraint(Sketcher.Constraint("DistanceY", 12, 3, 5, 3, Q("5 mm")))
sketch5.addConstraint(Sketcher.Constraint("DistanceY", 2, 2, 2, 1, Q("0.970554 mm")))
sketch5.setExpression("Constraints[46]", "Params.sketch5_radius")
sketch5.setExpression("Constraints[47]", "Params.sketch5_width")
sketch5.setExpression("Constraints[48]", "Params.sketch5_width2")
pocket2 = body.newObject("PartDesign::Pocket", "Pocket001")
pocket2.Profile = sketch5
pocket2.setExpression("Length", "Params.pocket2_length")
pocket2.Reversed = True
doc.recompute()

fillet = body.newObject("PartDesign::Fillet", "Fillet")
fillet.Base = (pocket2, edges_at(pocket2, [(3, 4.75, -3), (-3, 4.75, -3)]))
fillet.setExpression("Radius", "Params.fillet_radius")

sketch6 = body.newObject("Sketcher::SketchObject", "Sketch005")
sketch6.AttachmentSupport = (doc.getObject("XZ_Plane"), [""])
sketch6.MapMode = "FlatFace"
sketch6.addGeometry(Part.LineSegment(App.Vector(3, -1.53, 0), App.Vector(3, -2.5, 0)), False)
sketch6.addGeometry(Part.ArcOfCircle(Part.Circle(App.Vector(2.5, -2.5, 0), App.Vector(0, 0, 1), 0.5), math.radians(-90), math.radians(0)), False)
sketch6.addGeometry(Part.LineSegment(App.Vector(2.5, -3, 0), App.Vector(-2.5, -3, 0)), False)
sketch6.addGeometry(Part.ArcOfCircle(Part.Circle(App.Vector(-2.5, -2.5, 0), App.Vector(0, 0, 1), 0.5), math.radians(180), math.radians(270)), False)
sketch6.addGeometry(Part.LineSegment(App.Vector(-3, -2.5, 0), App.Vector(-3, -1.53, 0)), False)
sketch6.addGeometry(Part.LineSegment(App.Vector(-3, -1.53, 0), App.Vector(-3.5, -1.53, 0)), False)
sketch6.addGeometry(Part.LineSegment(App.Vector(-3.5, -1.53, 0), App.Vector(-3.5, 1.53, 0)), False)
sketch6.addGeometry(Part.LineSegment(App.Vector(-3.5, 1.53, 0), App.Vector(-3, 1.53, 0)), False)
sketch6.addGeometry(Part.LineSegment(App.Vector(-3, 1.53, 0), App.Vector(-3, 2.5, 0)), False)
sketch6.addGeometry(Part.ArcOfCircle(Part.Circle(App.Vector(-1.75, 2.5, 0), App.Vector(0, 0, 1), 1.25), math.radians(127), math.radians(180)), False)
sketch6.addGeometry(Part.LineSegment(App.Vector(-2.5, 3.5, 0), App.Vector(2.5, 3.5, 0)), False)
sketch6.addGeometry(Part.ArcOfCircle(Part.Circle(App.Vector(1.75, 2.5, 0), App.Vector(0, 0, 1), 1.25), math.radians(0), math.radians(53)), False)
sketch6.addGeometry(Part.LineSegment(App.Vector(3, 2.5, 0), App.Vector(3, 1.53, 0)), False)
sketch6.addGeometry(Part.LineSegment(App.Vector(3, 1.53, 0), App.Vector(3.5, 1.53, 0)), False)
sketch6.addGeometry(Part.LineSegment(App.Vector(3.5, 1.53, 0), App.Vector(3.5, -1.53, 0)), False)
sketch6.addGeometry(Part.LineSegment(App.Vector(3.5, -1.53, 0), App.Vector(3, -1.53, 0)), False)
sketch6.addConstraint(Sketcher.Constraint("Tangent", 0, 2, 1, 2))
sketch6.addConstraint(Sketcher.Constraint("Tangent", 1, 1, 2, 1))
sketch6.addConstraint(Sketcher.Constraint("Tangent", 2, 2, 3, 2))
sketch6.addConstraint(Sketcher.Constraint("Tangent", 3, 1, 4, 1))
sketch6.addConstraint(Sketcher.Constraint("Coincident", 4, 2, 5, 1))
sketch6.addConstraint(Sketcher.Constraint("Coincident", 5, 2, 6, 1))
sketch6.addConstraint(Sketcher.Constraint("Coincident", 6, 2, 7, 1))
sketch6.addConstraint(Sketcher.Constraint("Coincident", 7, 2, 8, 1))
sketch6.addConstraint(Sketcher.Constraint("Tangent", 8, 2, 9, 2))
sketch6.addConstraint(Sketcher.Constraint("Coincident", 9, 1, 10, 1))
sketch6.addConstraint(Sketcher.Constraint("Coincident", 10, 2, 11, 2))
sketch6.addConstraint(Sketcher.Constraint("Tangent", 11, 1, 12, 1))
sketch6.addConstraint(Sketcher.Constraint("Coincident", 12, 2, 13, 1))
sketch6.addConstraint(Sketcher.Constraint("Coincident", 13, 2, 14, 1))
sketch6.addConstraint(Sketcher.Constraint("Coincident", 14, 2, 15, 1))
sketch6.addConstraint(Sketcher.Constraint("Coincident", 15, 2, 0, 1))
sketch6.addConstraint(Sketcher.Constraint("Vertical", 0))
sketch6.addConstraint(Sketcher.Constraint("Horizontal", 2))
sketch6.addConstraint(Sketcher.Constraint("Vertical", 4))
sketch6.addConstraint(Sketcher.Constraint("Horizontal", 5))
sketch6.addConstraint(Sketcher.Constraint("Vertical", 6))
sketch6.addConstraint(Sketcher.Constraint("Horizontal", 7))
sketch6.addConstraint(Sketcher.Constraint("Vertical", 8))
sketch6.addConstraint(Sketcher.Constraint("Horizontal", 10))
sketch6.addConstraint(Sketcher.Constraint("Vertical", 12))
sketch6.addConstraint(Sketcher.Constraint("Horizontal", 13))
sketch6.addConstraint(Sketcher.Constraint("Vertical", 14))
sketch6.addConstraint(Sketcher.Constraint("Horizontal", 15))
sketch6.addConstraint(Sketcher.Constraint("Equal", 1, 3))
sketch6.addConstraint(Sketcher.Constraint("Equal", 9, 11))
sketch6.addConstraint(Sketcher.Constraint("Symmetric", 0, 2, 8, 2, -1, 1))
sketch6.addConstraint(Sketcher.Constraint("Symmetric", 3, 1, 11, 1, -1, 1))
sketch6.addConstraint(Sketcher.Constraint("Symmetric", 5, 2, 13, 2, -1, 1))
sketch6.addConstraint(Sketcher.Constraint("Symmetric", 7, 2, 12, 2, -2))
sketch6.addConstraint(Sketcher.Constraint("Horizontal", 5, 2, 14, 2))
sketch6.addConstraint(Sketcher.Constraint("Vertical", 2, 2, 9, 1))
sketch6.addConstraint(Sketcher.Constraint("Radius", 1, Q("0.5 mm")))
sketch6.addConstraint(Sketcher.Constraint("DistanceX", 2, 2, 2, 1, Q("5 mm")))
sketch6.addConstraint(Sketcher.Constraint("Radius", 9, Q("1.25 mm")))
sketch6.addConstraint(Sketcher.Constraint("DistanceX", 5, 2, 5, 1, Q("0.5 mm")))
sketch6.addConstraint(Sketcher.Constraint("DistanceY", 1, 1, -1, 1, Q("3 mm")))
sketch6.addConstraint(Sketcher.Constraint("DistanceY", 0, 2, 0, 1, Q("0.970554 mm")))
sketch6.setExpression("Constraints[36]", "Params.sketch6_radius")
sketch6.setExpression("Constraints[37]", "Params.sketch6_width")
sketch6.setExpression("Constraints[38]", "Params.sketch6_radius2")
sketch6.setExpression("Constraints[39]", "Params.sketch6_width2")
pocket3 = body.newObject("PartDesign::Pocket", "Pocket002")
pocket3.Profile = sketch6
pocket3.setExpression("Length", "Params.pocket3_length")
body2 = doc.addObject("PartDesign::Body", "Body001")

sketch7 = body2.newObject("Sketcher::SketchObject", "Sketch006")
sketch7.AttachmentSupport = (doc.getObject("XZ_Plane001"), [""])
sketch7.MapMode = "FlatFace"
sketch7.AttachmentOffset = App.Placement(App.Vector(0, 0, -3.75), App.Rotation())
sketch7.addGeometry(Part.Circle(App.Vector(0, 0, 0), App.Vector(0, 0, 1), 1.6), False)
sketch7.addConstraint(Sketcher.Constraint("Coincident", 0, 3, -1, 1))
sketch7.addConstraint(Sketcher.Constraint("Diameter", 0, Q("3.3 mm")))
sketch7.setExpression("Constraints[1]", "Params.sketch7_diameter")
pad4 = body2.newObject("PartDesign::Pad", "Pad003")
pad4.Profile = sketch7
pad4.setExpression("Length", "Params.pad4_length")
pad4.Reversed = True

sketch8 = body2.newObject("Sketcher::SketchObject", "Sketch007")
sketch8.AttachmentSupport = (doc.getObject("XZ_Plane001"), [""])
sketch8.MapMode = "FlatFace"
sketch8.AttachmentOffset = App.Placement(App.Vector(0, 0, -5.8), App.Rotation())
sketch8.addGeometry(Part.LineSegment(App.Vector(-0.3, -1.18, 0), App.Vector(-0.3, -0.3, 0)), False)
sketch8.addGeometry(Part.LineSegment(App.Vector(-0.3, -0.3, 0), App.Vector(-1.38, -0.3, 0)), False)
sketch8.addGeometry(Part.LineSegment(App.Vector(-1.38, -0.3, 0), App.Vector(-1.38, 0.3, 0)), False)
sketch8.addGeometry(Part.LineSegment(App.Vector(-1.38, 0.3, 0), App.Vector(-0.3, 0.3, 0)), False)
sketch8.addGeometry(Part.LineSegment(App.Vector(-0.3, 0.3, 0), App.Vector(-0.3, 1.38, 0)), False)
sketch8.addGeometry(Part.LineSegment(App.Vector(-0.3, 1.38, 0), App.Vector(0.3, 1.38, 0)), False)
sketch8.addGeometry(Part.LineSegment(App.Vector(0.3, 1.38, 0), App.Vector(0.3, 0.3, 0)), False)
sketch8.addGeometry(Part.LineSegment(App.Vector(0.3, 0.3, 0), App.Vector(1.38, 0.3, 0)), False)
sketch8.addGeometry(Part.LineSegment(App.Vector(1.38, 0.3, 0), App.Vector(1.38, -0.3, 0)), False)
sketch8.addGeometry(Part.LineSegment(App.Vector(1.38, -0.3, 0), App.Vector(0.3, -0.3, 0)), False)
sketch8.addGeometry(Part.LineSegment(App.Vector(0.3, -0.3, 0), App.Vector(0.3, -1.18, 0)), False)
sketch8.addGeometry(Part.LineSegment(App.Vector(0.3, -1.18, 0), App.Vector(0.47, -1.18, 0)), False)
sketch8.addGeometry(Part.LineSegment(App.Vector(0.47, -1.18, 0), App.Vector(0, -1.38, 0)), False)
sketch8.addGeometry(Part.LineSegment(App.Vector(0, -1.38, 0), App.Vector(-0.47, -1.18, 0)), False)
sketch8.addGeometry(Part.LineSegment(App.Vector(-0.47, -1.18, 0), App.Vector(-0.3, -1.18, 0)), False)
sketch8.addConstraint(Sketcher.Constraint("Coincident", 0, 2, 1, 1))
sketch8.addConstraint(Sketcher.Constraint("Coincident", 1, 2, 2, 1))
sketch8.addConstraint(Sketcher.Constraint("Coincident", 2, 2, 3, 1))
sketch8.addConstraint(Sketcher.Constraint("Coincident", 3, 2, 4, 1))
sketch8.addConstraint(Sketcher.Constraint("Coincident", 4, 2, 5, 1))
sketch8.addConstraint(Sketcher.Constraint("Coincident", 5, 2, 6, 1))
sketch8.addConstraint(Sketcher.Constraint("Coincident", 6, 2, 7, 1))
sketch8.addConstraint(Sketcher.Constraint("Coincident", 7, 2, 8, 1))
sketch8.addConstraint(Sketcher.Constraint("Coincident", 8, 2, 9, 1))
sketch8.addConstraint(Sketcher.Constraint("Coincident", 9, 2, 10, 1))
sketch8.addConstraint(Sketcher.Constraint("Coincident", 10, 2, 11, 1))
sketch8.addConstraint(Sketcher.Constraint("Coincident", 11, 2, 12, 1))
sketch8.addConstraint(Sketcher.Constraint("Coincident", 12, 2, 13, 1))
sketch8.addConstraint(Sketcher.Constraint("Coincident", 13, 2, 14, 1))
sketch8.addConstraint(Sketcher.Constraint("Coincident", 14, 2, 0, 1))
sketch8.addConstraint(Sketcher.Constraint("Vertical", 0))
sketch8.addConstraint(Sketcher.Constraint("Horizontal", 1))
sketch8.addConstraint(Sketcher.Constraint("Vertical", 2))
sketch8.addConstraint(Sketcher.Constraint("Horizontal", 3))
sketch8.addConstraint(Sketcher.Constraint("Vertical", 4))
sketch8.addConstraint(Sketcher.Constraint("Horizontal", 5))
sketch8.addConstraint(Sketcher.Constraint("Vertical", 6))
sketch8.addConstraint(Sketcher.Constraint("Horizontal", 7))
sketch8.addConstraint(Sketcher.Constraint("Vertical", 8))
sketch8.addConstraint(Sketcher.Constraint("Horizontal", 9))
sketch8.addConstraint(Sketcher.Constraint("Vertical", 10))
sketch8.addConstraint(Sketcher.Constraint("Horizontal", 11))
sketch8.addConstraint(Sketcher.Constraint("Horizontal", 14))
sketch8.addConstraint(Sketcher.Constraint("Symmetric", 0, 2, 6, 2, -1, 1))
sketch8.addConstraint(Sketcher.Constraint("Symmetric", 2, 2, 8, 2, -1, 1))
sketch8.addConstraint(Sketcher.Constraint("Symmetric", 3, 2, 6, 2, -2))
sketch8.addConstraint(Sketcher.Constraint("Symmetric", 11, 2, 13, 2, -2))
sketch8.addConstraint(Sketcher.Constraint("PointOnObject", 12, 2, -2))
sketch8.addConstraint(Sketcher.Constraint("Vertical", 6, 2, 9, 2))
sketch8.addConstraint(Sketcher.Constraint("Equal", 5, 2))
sketch8.addConstraint(Sketcher.Constraint("Equal", 9, 4))
sketch8.addConstraint(Sketcher.Constraint("DistanceX", 5, 1, 5, 2, Q("0.6 mm")))
sketch8.addConstraint(Sketcher.Constraint("DistanceX", 11, 2, 8, 2, Q("0.9 mm")))
sketch8.addConstraint(Sketcher.Constraint("DistanceY", 12, 2, 10, 2, Q("0.2 mm")))
sketch8.addConstraint(Sketcher.Constraint("DistanceX", 1, 2, 1, 1, Q("1.075 mm")))
sketch8.addConstraint(Sketcher.Constraint("DistanceY", 0, 1, 0, 2, Q("0.875 mm")))
sketch8.setExpression("Constraints[36]", "Params.sketch8_width")
pocket4 = body2.newObject("PartDesign::Pocket", "Pocket003")
pocket4.Profile = sketch8
pocket4.setExpression("Length", "Params.pocket4_length")
pocket4.Reversed = True
doc.recompute()

fillet2 = body2.newObject("PartDesign::Fillet", "Fillet001")
fillet2.Base = (pocket4, edges_at(pocket4, [
    (-0.3, 5, -0.3),
    (0.3, 5, -0.3),
    (0.3, 5, 0.3),
    (-0.3, 5, 0.3),
]))
fillet2.setExpression("Radius", "Params.fillet2_radius")
body3 = doc.addObject("PartDesign::Body", "Body002")

sketch9 = body3.newObject("Sketcher::SketchObject", "Sketch008")
sketch9.AttachmentSupport = (doc.getObject("XZ_Plane002"), [""])
sketch9.MapMode = "FlatFace"
sketch9.AttachmentOffset = App.Placement(App.Vector(0, 0, -0.2), App.Rotation())
sketch9.addGeometry(Part.Circle(App.Vector(2.5, 0, 0), App.Vector(0, 0, 1), 0.23), False)
sketch9.addConstraint(Sketcher.Constraint("PointOnObject", 0, 3, -1))
sketch9.addConstraint(Sketcher.Constraint("Diameter", 0, Q("0.45 mm")))
sketch9.addConstraint(Sketcher.Constraint("DistanceX", -1, 1, 0, 3, Q("2.5 mm")))
sketch9.setExpression("Constraints[1]", "Params.sketch9_diameter")
pad5 = body3.newObject("PartDesign::Pad", "Pad004")
pad5.Profile = sketch9
pad5.setExpression("Length", "Params.pad5_length")
body4 = doc.addObject("PartDesign::Body", "Body003")

sketch10 = body4.newObject("Sketcher::SketchObject", "Sketch009")
sketch10.AttachmentSupport = (doc.getObject("XZ_Plane003"), [""])
sketch10.MapMode = "FlatFace"
sketch10.AttachmentOffset = App.Placement(App.Vector(0, 0, -0.2), App.Rotation())
sketch10.addGeometry(Part.Circle(App.Vector(0, -2.5, 0), App.Vector(0, 0, 1), 0.23), False)
sketch10.addConstraint(Sketcher.Constraint("PointOnObject", 0, 3, -2))
sketch10.addConstraint(Sketcher.Constraint("Diameter", 0, Q("0.45 mm")))
sketch10.addConstraint(Sketcher.Constraint("DistanceY", 0, 3, -1, 1, Q("2.5 mm")))
sketch10.setExpression("Constraints[1]", "Params.sketch10_diameter")
pad6 = body4.newObject("PartDesign::Pad", "Pad005")
pad6.Profile = sketch10
pad6.setExpression("Length", "Params.pad6_length")
body5 = doc.addObject("PartDesign::Body", "Body004")

sketch11 = body5.newObject("Sketcher::SketchObject", "Sketch010")
sketch11.AttachmentSupport = (doc.getObject("XZ_Plane004"), [""])
sketch11.MapMode = "FlatFace"
sketch11.AttachmentOffset = App.Placement(App.Vector(0, 0, -0.2), App.Rotation())
sketch11.addGeometry(Part.Circle(App.Vector(-2.5, 0, 0), App.Vector(0, 0, 1), 0.23), False)
sketch11.addConstraint(Sketcher.Constraint("PointOnObject", 0, 3, -1))
sketch11.addConstraint(Sketcher.Constraint("Diameter", 0, Q("0.45 mm")))
sketch11.addConstraint(Sketcher.Constraint("DistanceX", 0, 3, -1, 1, Q("2.5 mm")))
sketch11.setExpression("Constraints[1]", "Params.sketch11_diameter")
pad7 = body5.newObject("PartDesign::Pad", "Pad006")
pad7.Profile = sketch11
pad7.setExpression("Length", "Params.pad7_length")
body6 = doc.addObject("PartDesign::Body", "Body005")

sketch12 = body6.newObject("Sketcher::SketchObject", "Sketch011")
sketch12.AttachmentSupport = (doc.getObject("XZ_Plane005"), [""])
sketch12.MapMode = "FlatFace"
sketch12.AttachmentOffset = App.Placement(App.Vector(0, 0, 7), App.Rotation())
sketch12.addGeometry(Part.LineSegment(App.Vector(-7, 4, 0), App.Vector(-7, -7, 0)), False)
sketch12.addGeometry(Part.LineSegment(App.Vector(-7, -7, 0), App.Vector(4, -7, 0)), False)
sketch12.addGeometry(Part.LineSegment(App.Vector(4, -7, 0), App.Vector(4, 4, 0)), False)
sketch12.addGeometry(Part.LineSegment(App.Vector(4, 4, 0), App.Vector(-7, 4, 0)), False)
sketch12.addConstraint(Sketcher.Constraint("Coincident", 0, 2, 1, 1))
sketch12.addConstraint(Sketcher.Constraint("Coincident", 1, 2, 2, 1))
sketch12.addConstraint(Sketcher.Constraint("Coincident", 2, 2, 3, 1))
sketch12.addConstraint(Sketcher.Constraint("Coincident", 3, 2, 0, 1))
sketch12.addConstraint(Sketcher.Constraint("Vertical", 0))
sketch12.addConstraint(Sketcher.Constraint("Horizontal", 1))
sketch12.addConstraint(Sketcher.Constraint("Vertical", 2))
sketch12.addConstraint(Sketcher.Constraint("Horizontal", 3))
sketch12.addConstraint(Sketcher.Constraint("DistanceX", 1, 1, 1, 2, Q("11.625138 mm")))
sketch12.addConstraint(Sketcher.Constraint("DistanceY", 0, 2, 0, 1, Q("10.386388 mm")))
sketch12.addConstraint(Sketcher.Constraint("DistanceX", 0, 2, -1, 1, Q("7.197279 mm")))
sketch12.addConstraint(Sketcher.Constraint("DistanceY", 0, 2, -1, 1, Q("6.568233 mm")))
pad8 = body6.newObject("PartDesign::Pad", "Pad007")
pad8.Profile = sketch12
pad8.setExpression("Length", "Params.pad8_length")
pad8.Reversed = True
doc.recompute()

body7 = doc.addObject("PartDesign::Body", "Body006")
body7.BaseFeature = body6
boolean = body3.newObject("PartDesign::Boolean", "Boolean")
boolean.Type = "Cut"
boolean.addObjects([body7])
doc.recompute()

body8 = doc.addObject("PartDesign::Body", "Body007")
body8.BaseFeature = body6
boolean2 = body4.newObject("PartDesign::Boolean", "Boolean001")
boolean2.Type = "Cut"
boolean2.addObjects([body8])
doc.recompute()

boolean3 = body5.newObject("PartDesign::Boolean", "Boolean002")
boolean3.Type = "Cut"
boolean3.addObjects([body6])

doc.recompute()
